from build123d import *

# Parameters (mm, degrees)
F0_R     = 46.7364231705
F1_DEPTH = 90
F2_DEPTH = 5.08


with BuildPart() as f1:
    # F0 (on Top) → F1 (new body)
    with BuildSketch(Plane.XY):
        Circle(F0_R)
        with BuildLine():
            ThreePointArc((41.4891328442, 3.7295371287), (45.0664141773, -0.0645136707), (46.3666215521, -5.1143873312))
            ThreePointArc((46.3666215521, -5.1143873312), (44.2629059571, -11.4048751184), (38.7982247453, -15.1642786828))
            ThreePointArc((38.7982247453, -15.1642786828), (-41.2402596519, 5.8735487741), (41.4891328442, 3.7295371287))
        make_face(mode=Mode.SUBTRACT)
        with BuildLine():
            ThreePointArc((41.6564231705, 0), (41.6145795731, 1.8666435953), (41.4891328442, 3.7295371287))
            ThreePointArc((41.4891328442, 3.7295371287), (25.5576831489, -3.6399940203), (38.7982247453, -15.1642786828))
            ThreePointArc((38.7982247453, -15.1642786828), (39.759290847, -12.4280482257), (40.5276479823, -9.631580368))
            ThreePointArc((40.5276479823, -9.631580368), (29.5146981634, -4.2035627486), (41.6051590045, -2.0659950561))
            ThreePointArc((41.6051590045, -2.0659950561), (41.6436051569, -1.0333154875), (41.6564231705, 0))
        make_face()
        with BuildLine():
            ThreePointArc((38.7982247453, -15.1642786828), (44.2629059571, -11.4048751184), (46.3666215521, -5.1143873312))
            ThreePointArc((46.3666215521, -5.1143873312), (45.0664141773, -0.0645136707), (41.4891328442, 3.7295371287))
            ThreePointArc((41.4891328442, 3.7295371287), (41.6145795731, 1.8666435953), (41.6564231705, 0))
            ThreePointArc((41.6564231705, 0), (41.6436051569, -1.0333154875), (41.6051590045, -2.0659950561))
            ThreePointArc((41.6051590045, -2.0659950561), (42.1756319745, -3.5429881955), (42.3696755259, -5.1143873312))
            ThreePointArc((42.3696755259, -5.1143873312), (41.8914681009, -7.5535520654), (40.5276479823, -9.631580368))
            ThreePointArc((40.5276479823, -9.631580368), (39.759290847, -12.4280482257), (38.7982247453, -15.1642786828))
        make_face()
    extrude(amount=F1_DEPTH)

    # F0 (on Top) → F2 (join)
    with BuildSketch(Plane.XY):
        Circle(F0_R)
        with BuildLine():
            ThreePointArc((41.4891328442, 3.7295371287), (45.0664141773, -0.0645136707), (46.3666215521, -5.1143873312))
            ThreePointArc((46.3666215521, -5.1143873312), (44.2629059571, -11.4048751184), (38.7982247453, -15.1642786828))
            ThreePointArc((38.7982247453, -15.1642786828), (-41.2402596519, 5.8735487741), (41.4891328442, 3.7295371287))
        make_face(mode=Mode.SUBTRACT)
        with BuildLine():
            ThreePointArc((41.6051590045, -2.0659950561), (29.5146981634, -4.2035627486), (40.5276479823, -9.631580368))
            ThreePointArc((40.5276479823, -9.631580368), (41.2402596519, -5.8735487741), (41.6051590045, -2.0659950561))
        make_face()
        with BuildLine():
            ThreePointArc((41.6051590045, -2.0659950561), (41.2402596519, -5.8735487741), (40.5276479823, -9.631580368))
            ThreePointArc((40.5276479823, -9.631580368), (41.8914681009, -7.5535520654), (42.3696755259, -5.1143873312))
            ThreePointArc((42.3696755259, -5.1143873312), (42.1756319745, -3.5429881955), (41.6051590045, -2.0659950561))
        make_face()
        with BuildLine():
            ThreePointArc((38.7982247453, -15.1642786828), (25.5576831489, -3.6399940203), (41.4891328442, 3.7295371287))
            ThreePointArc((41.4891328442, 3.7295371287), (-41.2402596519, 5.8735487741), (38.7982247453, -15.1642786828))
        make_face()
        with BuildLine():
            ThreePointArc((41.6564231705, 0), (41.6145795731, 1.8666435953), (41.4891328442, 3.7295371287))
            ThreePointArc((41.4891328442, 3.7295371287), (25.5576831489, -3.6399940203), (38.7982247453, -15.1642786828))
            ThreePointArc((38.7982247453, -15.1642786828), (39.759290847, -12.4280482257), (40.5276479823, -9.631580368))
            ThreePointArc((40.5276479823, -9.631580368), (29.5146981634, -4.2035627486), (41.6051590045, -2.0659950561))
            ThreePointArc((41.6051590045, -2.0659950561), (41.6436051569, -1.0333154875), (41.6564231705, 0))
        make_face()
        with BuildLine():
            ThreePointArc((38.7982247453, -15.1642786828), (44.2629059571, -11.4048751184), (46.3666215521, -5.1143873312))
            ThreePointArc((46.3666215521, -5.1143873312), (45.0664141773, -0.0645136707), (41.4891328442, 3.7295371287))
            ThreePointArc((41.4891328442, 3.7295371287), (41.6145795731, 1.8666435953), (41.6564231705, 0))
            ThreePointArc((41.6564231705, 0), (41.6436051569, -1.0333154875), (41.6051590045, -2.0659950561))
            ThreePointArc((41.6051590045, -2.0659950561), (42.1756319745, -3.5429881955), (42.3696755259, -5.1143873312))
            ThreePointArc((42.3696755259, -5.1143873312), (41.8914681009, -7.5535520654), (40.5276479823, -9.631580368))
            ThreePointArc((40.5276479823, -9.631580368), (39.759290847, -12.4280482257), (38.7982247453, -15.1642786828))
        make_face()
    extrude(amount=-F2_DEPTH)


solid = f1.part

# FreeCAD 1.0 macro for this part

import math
import FreeCAD as App
import Part
import Sketcher

V = App.Vector
Q = App.Units.Quantity

doc = App.newDocument("Part")
body = doc.addObject("PartDesign::Body", "Body")

sketch1 = body.newObject("Sketcher::SketchObject", "Sketch")
sketch1.AttachmentSupport = (doc.getObject("XY_Plane"), [""])
sketch1.MapMode = "FlatFace"
sketch1.addGeometry([
    Part.Circle(V(0, 0, 0), V(0, 0, 1), 46.7),
    Part.ArcOfCircle(Part.Circle(V(0, 0, 0), V(0, 0, 1), 41.7), math.radians(5), math.radians(339)),
    Part.ArcOfCircle(Part.Circle(V(35.9, -5.1, 0), V(0, 0, 1), 10.5), math.radians(58), math.radians(286)),
    Part.ArcOfCircle(Part.Circle(V(35.9, -5.1, 0), V(0, 0, 1), 6.5), math.radians(-44), math.radians(0)),
    Part.ArcOfCircle(Part.Circle(V(35.9, -5.1, 0), V(0, 0, 1), 6.5), math.radians(28), math.radians(316)),
    Part.ArcOfCircle(Part.Circle(V(35.9, -5.1, 0), V(0, 0, 1), 6.5), math.radians(0), math.radians(28)),
], False)
sketch1.addConstraint([
    Sketcher.Constraint("Coincident", 1, 1, 2, 1),
    Sketcher.Constraint("Coincident", 2, 2, 1, 2),
    Sketcher.Constraint("Tangent", 3, 1, 4, 2),
    Sketcher.Constraint("Tangent", 4, 1, 5, 2),
    Sketcher.Constraint("Tangent", 5, 1, 3, 2),
    Sketcher.Constraint("Coincident", 0, 3, -1, 1),
    Sketcher.Constraint("Coincident", 1, 3, -1, 1),
    Sketcher.Constraint("Coincident", 3, 3, 2, 3),
    Sketcher.Constraint("Horizontal", 4, 3, 5, 1),
    Sketcher.Constraint("Diameter", 0, Q("93.472846 mm")),
    Sketcher.Constraint("Radius", 1, Q("41.656423 mm")),
    Sketcher.Constraint("Radius", 2, Q("10.456702 mm")),
    Sketcher.Constraint("Radius", 3, Q("6.459756 mm")),
    Sketcher.Constraint("DistanceY", 2, 2, 3, 1, Q("5.532698 mm")),
    Sketcher.Constraint("DistanceX", -1, 1, 2, 3, Q("35.909919 mm")),
    Sketcher.Constraint("DistanceY", 2, 2, -1, 1, Q("15.164279 mm")),
    Sketcher.Constraint("DistanceX", -1, 1, 4, 1, Q("41.605159 mm")),
])
pad1 = body.newObject("PartDesign::Pad", "Pad")
pad1.Profile = sketch1
pad1.Length = 90

sketch2 = body.newObject("Sketcher::SketchObject", "Sketch001")
sketch2.AttachmentSupport = (doc.getObject("XY_Plane"), [""])
sketch2.MapMode = "FlatFace"
sketch2.addGeometry(Part.Circle(V(0, 0, 0), V(0, 0, 1), 47), False)
sketch2.addConstraint([
    Sketcher.Constraint("Coincident", 0, 3, -1, 1),
    Sketcher.Constraint("Diameter", 0, Q("93.472846 mm")),
])
pad2 = body.newObject("PartDesign::Pad", "Pad001")
pad2.Profile = sketch2
pad2.Length = 5.08
pad2.Reversed = True

doc.recompute()
